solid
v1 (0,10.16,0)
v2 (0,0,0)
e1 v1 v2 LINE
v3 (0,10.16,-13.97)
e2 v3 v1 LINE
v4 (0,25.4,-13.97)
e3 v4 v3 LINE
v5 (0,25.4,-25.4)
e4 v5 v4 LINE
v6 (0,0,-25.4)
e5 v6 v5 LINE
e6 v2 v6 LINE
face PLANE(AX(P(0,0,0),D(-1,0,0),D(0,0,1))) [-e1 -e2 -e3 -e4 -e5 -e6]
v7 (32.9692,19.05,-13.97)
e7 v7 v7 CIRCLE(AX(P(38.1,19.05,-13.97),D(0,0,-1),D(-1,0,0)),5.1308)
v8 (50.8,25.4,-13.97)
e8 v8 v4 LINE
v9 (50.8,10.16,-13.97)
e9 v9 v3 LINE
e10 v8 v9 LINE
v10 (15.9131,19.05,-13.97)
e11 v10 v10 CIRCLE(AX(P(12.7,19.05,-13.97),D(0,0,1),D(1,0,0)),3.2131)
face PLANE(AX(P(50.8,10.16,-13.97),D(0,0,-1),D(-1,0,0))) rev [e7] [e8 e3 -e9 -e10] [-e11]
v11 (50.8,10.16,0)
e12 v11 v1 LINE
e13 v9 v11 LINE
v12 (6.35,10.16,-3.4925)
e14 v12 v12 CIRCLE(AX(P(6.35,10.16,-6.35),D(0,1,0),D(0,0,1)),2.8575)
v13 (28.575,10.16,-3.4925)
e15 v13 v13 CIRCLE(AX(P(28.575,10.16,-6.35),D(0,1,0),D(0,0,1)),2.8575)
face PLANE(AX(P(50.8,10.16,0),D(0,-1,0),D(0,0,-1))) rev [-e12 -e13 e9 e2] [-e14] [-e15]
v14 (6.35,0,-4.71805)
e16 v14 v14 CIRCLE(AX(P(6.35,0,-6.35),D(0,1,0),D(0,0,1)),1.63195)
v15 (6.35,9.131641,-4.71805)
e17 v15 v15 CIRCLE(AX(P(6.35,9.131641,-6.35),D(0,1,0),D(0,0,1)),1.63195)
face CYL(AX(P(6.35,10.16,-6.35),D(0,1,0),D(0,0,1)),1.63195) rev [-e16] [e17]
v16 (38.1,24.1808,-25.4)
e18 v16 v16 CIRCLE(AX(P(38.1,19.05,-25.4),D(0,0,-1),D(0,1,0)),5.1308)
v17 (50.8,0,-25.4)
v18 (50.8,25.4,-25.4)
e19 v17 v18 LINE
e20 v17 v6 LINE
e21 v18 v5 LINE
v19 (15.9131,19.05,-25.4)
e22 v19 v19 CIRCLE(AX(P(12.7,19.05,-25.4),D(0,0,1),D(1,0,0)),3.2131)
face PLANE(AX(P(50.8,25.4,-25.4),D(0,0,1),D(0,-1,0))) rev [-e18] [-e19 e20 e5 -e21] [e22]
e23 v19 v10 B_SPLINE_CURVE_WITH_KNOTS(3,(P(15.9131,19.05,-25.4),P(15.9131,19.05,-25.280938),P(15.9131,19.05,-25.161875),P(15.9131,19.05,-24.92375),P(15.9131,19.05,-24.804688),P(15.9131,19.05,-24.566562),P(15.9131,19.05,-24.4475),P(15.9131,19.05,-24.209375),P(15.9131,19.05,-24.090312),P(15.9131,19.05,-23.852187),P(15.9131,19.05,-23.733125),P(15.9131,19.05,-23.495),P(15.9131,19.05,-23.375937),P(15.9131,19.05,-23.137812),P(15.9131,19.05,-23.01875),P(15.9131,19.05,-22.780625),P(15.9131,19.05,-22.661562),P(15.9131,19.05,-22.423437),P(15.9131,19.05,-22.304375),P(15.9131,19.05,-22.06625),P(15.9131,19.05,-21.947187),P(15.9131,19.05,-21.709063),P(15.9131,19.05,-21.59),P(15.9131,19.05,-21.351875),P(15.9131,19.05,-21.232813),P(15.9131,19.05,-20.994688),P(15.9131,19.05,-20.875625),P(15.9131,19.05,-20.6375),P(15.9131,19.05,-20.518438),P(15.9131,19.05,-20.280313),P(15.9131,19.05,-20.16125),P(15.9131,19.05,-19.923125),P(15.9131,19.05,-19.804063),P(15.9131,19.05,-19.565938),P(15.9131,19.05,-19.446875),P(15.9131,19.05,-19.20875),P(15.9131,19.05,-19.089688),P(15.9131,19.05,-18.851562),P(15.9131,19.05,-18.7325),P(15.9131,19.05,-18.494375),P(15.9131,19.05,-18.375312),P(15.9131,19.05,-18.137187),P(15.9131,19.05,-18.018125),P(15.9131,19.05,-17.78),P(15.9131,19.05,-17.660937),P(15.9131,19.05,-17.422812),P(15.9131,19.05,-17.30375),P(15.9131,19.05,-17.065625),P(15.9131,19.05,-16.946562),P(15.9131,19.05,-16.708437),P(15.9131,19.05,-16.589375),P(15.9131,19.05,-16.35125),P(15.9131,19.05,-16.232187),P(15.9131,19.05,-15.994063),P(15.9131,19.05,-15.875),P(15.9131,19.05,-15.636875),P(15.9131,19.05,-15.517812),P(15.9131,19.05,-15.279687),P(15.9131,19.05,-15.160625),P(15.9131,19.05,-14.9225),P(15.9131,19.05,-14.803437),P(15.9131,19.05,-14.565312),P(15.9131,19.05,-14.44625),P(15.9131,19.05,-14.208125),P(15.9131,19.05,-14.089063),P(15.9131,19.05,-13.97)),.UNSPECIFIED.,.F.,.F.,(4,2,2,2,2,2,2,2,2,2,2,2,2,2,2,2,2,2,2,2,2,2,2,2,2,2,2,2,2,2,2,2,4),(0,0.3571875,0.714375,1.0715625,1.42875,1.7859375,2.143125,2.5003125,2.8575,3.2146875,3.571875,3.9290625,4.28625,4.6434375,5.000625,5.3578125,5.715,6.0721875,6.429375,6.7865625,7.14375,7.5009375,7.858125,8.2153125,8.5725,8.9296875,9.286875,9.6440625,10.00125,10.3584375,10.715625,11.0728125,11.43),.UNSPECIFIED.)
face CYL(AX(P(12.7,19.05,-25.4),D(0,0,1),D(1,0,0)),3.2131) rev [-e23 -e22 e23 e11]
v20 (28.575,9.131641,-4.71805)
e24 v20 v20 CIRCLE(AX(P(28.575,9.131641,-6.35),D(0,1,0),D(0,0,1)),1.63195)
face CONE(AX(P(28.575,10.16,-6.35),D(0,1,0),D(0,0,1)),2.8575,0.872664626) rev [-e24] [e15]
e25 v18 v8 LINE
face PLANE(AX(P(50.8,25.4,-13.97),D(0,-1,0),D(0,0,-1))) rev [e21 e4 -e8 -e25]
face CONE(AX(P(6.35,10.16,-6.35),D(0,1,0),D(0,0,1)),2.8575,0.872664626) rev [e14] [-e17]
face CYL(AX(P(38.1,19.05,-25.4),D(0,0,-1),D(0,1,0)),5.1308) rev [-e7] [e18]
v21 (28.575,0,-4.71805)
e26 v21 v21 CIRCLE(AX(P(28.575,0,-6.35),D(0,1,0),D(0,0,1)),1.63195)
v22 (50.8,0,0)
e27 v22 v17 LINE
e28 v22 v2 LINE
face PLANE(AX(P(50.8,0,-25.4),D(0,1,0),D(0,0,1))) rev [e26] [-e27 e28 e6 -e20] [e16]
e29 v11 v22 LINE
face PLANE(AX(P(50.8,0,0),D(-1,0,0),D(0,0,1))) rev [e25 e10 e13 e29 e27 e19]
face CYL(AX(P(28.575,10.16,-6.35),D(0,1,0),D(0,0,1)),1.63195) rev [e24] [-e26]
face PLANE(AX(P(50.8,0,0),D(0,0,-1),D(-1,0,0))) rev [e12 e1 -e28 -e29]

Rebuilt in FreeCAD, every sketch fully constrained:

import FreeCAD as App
import Part
import Sketcher
from FreeCAD import Vector
Q = App.Units.Quantity


def add_polygon(sketch, points):
    """Adds a closed chain of lines whose ends are joined by coincident constraints."""
    first, n = sketch.GeometryCount, len(points)
    for a, b in zip(points, points[1:] + points[:1]):
        sketch.addGeometry(Part.LineSegment(App.Vector(*a, 0), App.Vector(*b, 0)), False)
    for i in range(n):
        sketch.addConstraint(Sketcher.Constraint("Coincident", first + i, 2, first + (i + 1) % n, 1))

doc = App.newDocument("Part")
params = doc.addObject("Spreadsheet::Sheet", "Params")
for row, (alias, value) in enumerate([
    ("sketch1_width", "1 in"),
    ("sketch1_width2", "0.4 in"),
    ("sketch1_height", "0.45 in"),
    ("pad1_length", "2 in"),
    ("sketch2_diameter", "0.253 in"),
    ("hole_diameter", "0.1285 in"),
    ("hole_csink_diameter", "0.225 in"),
    ("sketch4_diameter", "0.404 in"),
    ("hole2_diameter", "0.404 in"),
], start=1):
    params.set(f"A{row}", alias)
    params.set(f"B{row}", "=" + value)
    params.setAlias(f"B{row}", alias)

body = doc.addObject("PartDesign::Body", "Body")

# Sketch on YZ plane
sketch1 = body.newObject("Sketcher::SketchObject", "Sketch")
sketch1.AttachmentSupport = (doc.getObject("YZ_Plane"), [""])
sketch1.MapMode = "FlatFace"
add_polygon(sketch1, [(10, 0), (0, 0), (0, -25), (25, -25), (25, -14), (10, -14)])  # lines 0-5
sketch1.addConstraint(Sketcher.Constraint("Horizontal", 0))
sketch1.addConstraint(Sketcher.Constraint("Vertical", 1))
sketch1.addConstraint(Sketcher.Constraint("Horizontal", 2))
sketch1.addConstraint(Sketcher.Constraint("Vertical", 3))
sketch1.addConstraint(Sketcher.Constraint("Horizontal", 4))
sketch1.addConstraint(Sketcher.Constraint("Vertical", 5))
sketch1.addConstraint(Sketcher.Constraint("Coincident", 0, 2, -1, 1))
sketch1.addConstraint(Sketcher.Constraint("Equal", 2, 1))
sketch1.addConstraint(Sketcher.Constraint("DistanceX", 2, 1, 2, 2, Q("1 in")))
sketch1.addConstraint(Sketcher.Constraint("DistanceX", 0, 2, 0, 1, Q("0.4 in")))
sketch1.addConstraint(Sketcher.Constraint("DistanceY", 3, 1, 3, 2, Q("0.45 in")))
sketch1.setExpression("Constraints[14]", "Params.sketch1_width")
sketch1.setExpression("Constraints[15]", "Params.sketch1_width2")
sketch1.setExpression("Constraints[16]", "Params.sketch1_height")
pad1 = body.newObject("PartDesign::Pad", "Pad")
pad1.Profile = sketch1
pad1.setExpression("Length", "Params.pad1_length")

# Sketch on XY plane
sketch2 = body.newObject("Sketcher::SketchObject", "Sketch001")
sketch2.AttachmentSupport = (doc.getObject("XY_Plane"), [""])
sketch2.MapMode = "FlatFace"
sketch2.AttachmentOffset = App.Placement(Vector(0, 0, -0.55 * 25.4), App.Rotation())
sketch2.addGeometry(Part.Circle(Vector(12.7, 19.1, 0), Vector(0, 0, 1), 3.2), False)
sketch2.addConstraint(Sketcher.Constraint("Diameter", 0, Q("0.253 in")))
sketch2.addConstraint(Sketcher.Constraint("DistanceX", -1, 1, 0, 3, Q("0.5 in")))
sketch2.addConstraint(Sketcher.Constraint("DistanceY", -1, 1, 0, 3, Q("0.75 in")))
sketch2.setExpression("Constraints[0]", "Params.sketch2_diameter")
pocket1 = body.newObject("PartDesign::Pocket", "Pocket")
pocket1.Profile = sketch2
pocket1.Type = "ThroughAll"

# Sketch on XZ plane
sketch3 = body.newObject("Sketcher::SketchObject", "Sketch002")
sketch3.AttachmentSupport = (doc.getObject("XZ_Plane"), [""])
sketch3.MapMode = "FlatFace"
sketch3.AttachmentOffset = App.Placement(Vector(0, 0, -0.4 * 25.4), App.Rotation())
sketch3.addGeometry(Part.Circle(Vector(6.3, -6.3, 0), Vector(0, 0, 1), 1.6), False)
sketch3.addGeometry(Part.Circle(Vector(28.6, -6.3, 0), Vector(0, 0, 1), 1.6), False)
sketch3.addConstraint(Sketcher.Constraint("Equal", 0, 1))
sketch3.addConstraint(Sketcher.Constraint("Horizontal", 0, 3, 1, 3))
sketch3.addConstraint(Sketcher.Constraint("Diameter", 0, Q("0.1285 in")))
sketch3.addConstraint(Sketcher.Constraint("DistanceX", -1, 1, 0, 3, Q("0.25 in")))
sketch3.addConstraint(Sketcher.Constraint("DistanceY", 0, 3, -1, 1, Q("0.25 in")))
sketch3.addConstraint(Sketcher.Constraint("DistanceX", -1, 1, 1, 3, Q("1.125 in")))
doc.recompute()
hole = body.newObject("PartDesign::Hole", "Hole")
hole.Profile = sketch3
hole.ThreadType = "None"
hole.setExpression("Diameter", "Params.hole_diameter")
hole.DepthType = "ThroughAll"
hole.HoleCutType = "Countersink"
hole.setExpression("HoleCutDiameter", "Params.hole_csink_diameter")
hole.HoleCutCountersinkAngle = 100
hole.Reversed = True

# Sketch on XY plane
sketch4 = body.newObject("Sketcher::SketchObject", "Sketch003")
sketch4.AttachmentSupport = (doc.getObject("XY_Plane"), [""])
sketch4.MapMode = "FlatFace"
sketch4.AttachmentOffset = App.Placement(Vector(0, 0, -1 * 25.4), App.Rotation())
sketch4.addGeometry(Part.Circle(Vector(38, 19, 0), Vector(0, 0, 1), 5), False)
sketch4.addConstraint(Sketcher.Constraint("Diameter", 0, Q("0.404 in")))
sketch4.addConstraint(Sketcher.Constraint("DistanceX", -1, 1, 0, 3, Q("1.5 in")))
sketch4.addConstraint(Sketcher.Constraint("DistanceY", -1, 1, 0, 3, Q("0.75 in")))
sketch4.setExpression("Constraints[0]", "Params.sketch4_diameter")
doc.recompute()
hole2 = body.newObject("PartDesign::Hole", "Hole001")
hole2.Profile = sketch4
hole2.ThreadType = "None"
hole2.setExpression("Diameter", "Params.hole2_diameter")
hole2.DepthType = "ThroughAll"
hole2.Reversed = True

doc.recompute()
